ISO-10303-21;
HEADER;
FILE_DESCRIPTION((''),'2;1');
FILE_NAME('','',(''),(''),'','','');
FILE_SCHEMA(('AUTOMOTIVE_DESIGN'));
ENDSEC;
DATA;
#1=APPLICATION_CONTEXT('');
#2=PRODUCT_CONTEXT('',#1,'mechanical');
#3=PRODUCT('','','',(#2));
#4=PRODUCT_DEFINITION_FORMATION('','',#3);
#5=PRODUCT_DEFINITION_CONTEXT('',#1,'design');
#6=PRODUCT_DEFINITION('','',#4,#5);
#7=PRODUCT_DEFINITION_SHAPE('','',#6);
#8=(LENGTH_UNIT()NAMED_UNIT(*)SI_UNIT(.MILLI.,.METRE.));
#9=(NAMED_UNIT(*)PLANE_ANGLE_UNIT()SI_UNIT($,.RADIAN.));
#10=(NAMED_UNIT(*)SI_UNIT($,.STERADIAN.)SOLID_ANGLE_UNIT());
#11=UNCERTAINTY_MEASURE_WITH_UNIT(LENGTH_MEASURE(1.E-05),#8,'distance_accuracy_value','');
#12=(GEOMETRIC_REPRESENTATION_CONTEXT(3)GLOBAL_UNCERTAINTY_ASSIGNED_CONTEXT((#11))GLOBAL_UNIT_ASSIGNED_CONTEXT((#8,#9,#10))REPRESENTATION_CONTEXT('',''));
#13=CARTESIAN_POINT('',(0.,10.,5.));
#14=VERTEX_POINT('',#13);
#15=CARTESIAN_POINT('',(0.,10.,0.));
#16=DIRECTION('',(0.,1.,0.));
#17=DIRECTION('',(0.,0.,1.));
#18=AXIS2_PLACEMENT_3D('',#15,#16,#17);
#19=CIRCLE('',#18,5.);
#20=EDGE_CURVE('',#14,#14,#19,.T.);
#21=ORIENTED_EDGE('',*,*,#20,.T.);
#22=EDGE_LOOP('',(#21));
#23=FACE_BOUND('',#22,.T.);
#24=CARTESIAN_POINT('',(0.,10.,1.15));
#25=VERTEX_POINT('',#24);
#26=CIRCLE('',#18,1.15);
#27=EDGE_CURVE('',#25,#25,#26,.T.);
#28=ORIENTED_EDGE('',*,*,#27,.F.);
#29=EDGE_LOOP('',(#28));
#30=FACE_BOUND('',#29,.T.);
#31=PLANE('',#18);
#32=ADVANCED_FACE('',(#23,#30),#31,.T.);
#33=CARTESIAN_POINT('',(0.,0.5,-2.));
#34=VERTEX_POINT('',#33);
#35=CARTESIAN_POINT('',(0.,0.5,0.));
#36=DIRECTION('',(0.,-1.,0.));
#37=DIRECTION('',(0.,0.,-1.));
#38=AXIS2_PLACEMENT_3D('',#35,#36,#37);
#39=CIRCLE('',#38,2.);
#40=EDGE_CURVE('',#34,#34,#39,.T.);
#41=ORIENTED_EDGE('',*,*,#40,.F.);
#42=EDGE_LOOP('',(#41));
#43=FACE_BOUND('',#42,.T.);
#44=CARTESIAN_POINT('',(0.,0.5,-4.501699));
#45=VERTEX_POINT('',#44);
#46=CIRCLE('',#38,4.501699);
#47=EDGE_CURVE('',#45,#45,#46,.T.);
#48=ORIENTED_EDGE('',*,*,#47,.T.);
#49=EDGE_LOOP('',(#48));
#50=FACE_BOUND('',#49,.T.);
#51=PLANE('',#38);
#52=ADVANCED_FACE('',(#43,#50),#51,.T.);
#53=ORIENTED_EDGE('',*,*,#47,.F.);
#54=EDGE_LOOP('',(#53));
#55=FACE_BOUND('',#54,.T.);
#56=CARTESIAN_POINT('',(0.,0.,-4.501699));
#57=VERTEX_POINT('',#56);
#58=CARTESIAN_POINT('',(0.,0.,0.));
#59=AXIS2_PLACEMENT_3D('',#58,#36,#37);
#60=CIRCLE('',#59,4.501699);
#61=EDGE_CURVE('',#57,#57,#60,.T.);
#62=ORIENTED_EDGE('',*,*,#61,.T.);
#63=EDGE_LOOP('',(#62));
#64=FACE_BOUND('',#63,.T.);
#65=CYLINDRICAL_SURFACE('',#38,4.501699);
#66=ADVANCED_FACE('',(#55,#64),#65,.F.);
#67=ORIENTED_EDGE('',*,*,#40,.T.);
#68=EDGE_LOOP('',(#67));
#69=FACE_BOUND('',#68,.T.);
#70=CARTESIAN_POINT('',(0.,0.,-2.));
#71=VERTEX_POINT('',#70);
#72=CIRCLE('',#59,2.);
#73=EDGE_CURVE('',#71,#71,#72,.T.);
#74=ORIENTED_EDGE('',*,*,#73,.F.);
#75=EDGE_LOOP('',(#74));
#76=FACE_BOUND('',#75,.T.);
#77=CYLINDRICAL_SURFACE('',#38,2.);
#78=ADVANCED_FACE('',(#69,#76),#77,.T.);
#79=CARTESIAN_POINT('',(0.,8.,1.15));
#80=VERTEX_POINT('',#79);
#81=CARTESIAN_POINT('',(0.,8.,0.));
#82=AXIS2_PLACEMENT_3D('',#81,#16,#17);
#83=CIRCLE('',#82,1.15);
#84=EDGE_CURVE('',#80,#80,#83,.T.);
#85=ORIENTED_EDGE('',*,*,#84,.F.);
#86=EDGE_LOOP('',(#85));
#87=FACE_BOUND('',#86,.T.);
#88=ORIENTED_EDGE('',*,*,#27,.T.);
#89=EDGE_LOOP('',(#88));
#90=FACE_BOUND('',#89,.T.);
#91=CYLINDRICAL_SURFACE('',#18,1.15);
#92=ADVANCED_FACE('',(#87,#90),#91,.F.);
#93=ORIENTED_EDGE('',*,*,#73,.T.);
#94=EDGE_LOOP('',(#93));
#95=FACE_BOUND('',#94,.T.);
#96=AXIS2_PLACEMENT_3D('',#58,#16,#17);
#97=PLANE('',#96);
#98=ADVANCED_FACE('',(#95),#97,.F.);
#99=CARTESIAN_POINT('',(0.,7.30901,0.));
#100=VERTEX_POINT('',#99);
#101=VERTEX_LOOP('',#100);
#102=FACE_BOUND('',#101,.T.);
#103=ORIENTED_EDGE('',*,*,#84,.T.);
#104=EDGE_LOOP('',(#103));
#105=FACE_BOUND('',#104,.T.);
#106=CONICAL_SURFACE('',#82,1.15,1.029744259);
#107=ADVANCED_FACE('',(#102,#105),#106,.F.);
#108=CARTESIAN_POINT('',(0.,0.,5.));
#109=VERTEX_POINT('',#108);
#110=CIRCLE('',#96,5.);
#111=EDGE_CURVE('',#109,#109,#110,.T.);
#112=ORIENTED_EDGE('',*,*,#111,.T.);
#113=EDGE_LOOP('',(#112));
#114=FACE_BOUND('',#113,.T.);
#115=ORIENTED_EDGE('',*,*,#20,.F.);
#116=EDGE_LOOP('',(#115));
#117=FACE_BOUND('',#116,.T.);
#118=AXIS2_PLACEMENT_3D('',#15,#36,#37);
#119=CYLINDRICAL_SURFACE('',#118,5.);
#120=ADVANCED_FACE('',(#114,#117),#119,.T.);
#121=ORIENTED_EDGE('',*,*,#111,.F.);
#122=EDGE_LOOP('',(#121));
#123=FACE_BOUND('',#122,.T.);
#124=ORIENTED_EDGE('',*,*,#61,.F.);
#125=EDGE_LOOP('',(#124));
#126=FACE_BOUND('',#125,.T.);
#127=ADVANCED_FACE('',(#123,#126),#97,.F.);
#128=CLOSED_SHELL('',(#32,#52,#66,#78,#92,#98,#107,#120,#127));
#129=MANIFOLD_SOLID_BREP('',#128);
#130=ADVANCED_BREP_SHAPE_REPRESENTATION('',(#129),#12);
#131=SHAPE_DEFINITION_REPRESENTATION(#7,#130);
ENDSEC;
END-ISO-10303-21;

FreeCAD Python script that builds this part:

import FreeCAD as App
import Part
import Sketcher

V = App.Vector
Q = App.Units.Quantity

doc = App.newDocument("Part")
body = doc.addObject("PartDesign::Body", "Body")

# Sketch on XZ plane
sketch1 = doc.addObject("Sketcher::SketchObject", "Sketch")
body.addObject(sketch1)
sketch1.AttachmentSupport = (doc.XZ_Plane, [""])
sketch1.MapMode = "FlatFace"
sketch1.addGeometry(Part.Circle(V(0, 0, 0), V(0, 0, 1), 5), False)
sketch1.addConstraint([
    Sketcher.Constraint("Coincident", 0, 3, -1, 1),
    Sketcher.Constraint("Diameter", 0, Q("10 mm")),
])
pad1 = doc.addObject("PartDesign::Pad", "Pad")
body.addObject(pad1)
pad1.Profile = sketch1
pad1.Length = 10
pad1.Reversed = True

# Sketch on XZ plane
sketch2 = doc.addObject("Sketcher::SketchObject", "Sketch001")
body.addObject(sketch2)
sketch2.AttachmentSupport = (doc.XZ_Plane, [""])
sketch2.MapMode = "FlatFace"
sketch2.addGeometry([
    Part.Circle(V(0, 0, 0), V(0, 0, 1), 4.501699),
    Part.Circle(V(0, 0, 0), V(0, 0, 1), 2),
], False)
sketch2.addConstraint([
    Sketcher.Constraint("Coincident", 0, 3, -1, 1),
    Sketcher.Constraint("Coincident", 1, 3, -1, 1),
    Sketcher.Constraint("Diameter", 1, Q("4 mm")),
    Sketcher.Constraint("Diameter", 0, Q("9.003398 mm")),
])
pocket1 = doc.addObject("PartDesign::Pocket", "Pocket")
body.addObject(pocket1)
pocket1.Profile = sketch2
pocket1.Length = 0.5

# Sketch on XZ plane
sketch3 = doc.addObject("Sketcher::SketchObject", "Sketch002")
body.addObject(sketch3)
sketch3.AttachmentSupport = (doc.XZ_Plane, [""])
sketch3.MapMode = "FlatFace"
sketch3.AttachmentOffset = App.Placement(V(0, 0, -10), App.Rotation())
sketch3.addGeometry(Part.Circle(V(0, 0, 0), V(0, 0, 1), 1.15), False)
sketch3.addConstraint([
    Sketcher.Constraint("Coincident", 0, 3, -1, 1),
    Sketcher.Constraint("Diameter", 0, Q("2.3 mm")),
])
doc.recompute()
hole = doc.addObject("PartDesign::Hole", "Hole")
body.addObject(hole)
hole.Profile = sketch3
hole.ThreadType = "None"
hole.Diameter = 2.3
hole.DepthType = "Dimension"
hole.Depth = 2
hole.DrillPoint = "Angled"
hole.DrillPointAngle = 118
hole.Reversed = True

doc.recompute()
